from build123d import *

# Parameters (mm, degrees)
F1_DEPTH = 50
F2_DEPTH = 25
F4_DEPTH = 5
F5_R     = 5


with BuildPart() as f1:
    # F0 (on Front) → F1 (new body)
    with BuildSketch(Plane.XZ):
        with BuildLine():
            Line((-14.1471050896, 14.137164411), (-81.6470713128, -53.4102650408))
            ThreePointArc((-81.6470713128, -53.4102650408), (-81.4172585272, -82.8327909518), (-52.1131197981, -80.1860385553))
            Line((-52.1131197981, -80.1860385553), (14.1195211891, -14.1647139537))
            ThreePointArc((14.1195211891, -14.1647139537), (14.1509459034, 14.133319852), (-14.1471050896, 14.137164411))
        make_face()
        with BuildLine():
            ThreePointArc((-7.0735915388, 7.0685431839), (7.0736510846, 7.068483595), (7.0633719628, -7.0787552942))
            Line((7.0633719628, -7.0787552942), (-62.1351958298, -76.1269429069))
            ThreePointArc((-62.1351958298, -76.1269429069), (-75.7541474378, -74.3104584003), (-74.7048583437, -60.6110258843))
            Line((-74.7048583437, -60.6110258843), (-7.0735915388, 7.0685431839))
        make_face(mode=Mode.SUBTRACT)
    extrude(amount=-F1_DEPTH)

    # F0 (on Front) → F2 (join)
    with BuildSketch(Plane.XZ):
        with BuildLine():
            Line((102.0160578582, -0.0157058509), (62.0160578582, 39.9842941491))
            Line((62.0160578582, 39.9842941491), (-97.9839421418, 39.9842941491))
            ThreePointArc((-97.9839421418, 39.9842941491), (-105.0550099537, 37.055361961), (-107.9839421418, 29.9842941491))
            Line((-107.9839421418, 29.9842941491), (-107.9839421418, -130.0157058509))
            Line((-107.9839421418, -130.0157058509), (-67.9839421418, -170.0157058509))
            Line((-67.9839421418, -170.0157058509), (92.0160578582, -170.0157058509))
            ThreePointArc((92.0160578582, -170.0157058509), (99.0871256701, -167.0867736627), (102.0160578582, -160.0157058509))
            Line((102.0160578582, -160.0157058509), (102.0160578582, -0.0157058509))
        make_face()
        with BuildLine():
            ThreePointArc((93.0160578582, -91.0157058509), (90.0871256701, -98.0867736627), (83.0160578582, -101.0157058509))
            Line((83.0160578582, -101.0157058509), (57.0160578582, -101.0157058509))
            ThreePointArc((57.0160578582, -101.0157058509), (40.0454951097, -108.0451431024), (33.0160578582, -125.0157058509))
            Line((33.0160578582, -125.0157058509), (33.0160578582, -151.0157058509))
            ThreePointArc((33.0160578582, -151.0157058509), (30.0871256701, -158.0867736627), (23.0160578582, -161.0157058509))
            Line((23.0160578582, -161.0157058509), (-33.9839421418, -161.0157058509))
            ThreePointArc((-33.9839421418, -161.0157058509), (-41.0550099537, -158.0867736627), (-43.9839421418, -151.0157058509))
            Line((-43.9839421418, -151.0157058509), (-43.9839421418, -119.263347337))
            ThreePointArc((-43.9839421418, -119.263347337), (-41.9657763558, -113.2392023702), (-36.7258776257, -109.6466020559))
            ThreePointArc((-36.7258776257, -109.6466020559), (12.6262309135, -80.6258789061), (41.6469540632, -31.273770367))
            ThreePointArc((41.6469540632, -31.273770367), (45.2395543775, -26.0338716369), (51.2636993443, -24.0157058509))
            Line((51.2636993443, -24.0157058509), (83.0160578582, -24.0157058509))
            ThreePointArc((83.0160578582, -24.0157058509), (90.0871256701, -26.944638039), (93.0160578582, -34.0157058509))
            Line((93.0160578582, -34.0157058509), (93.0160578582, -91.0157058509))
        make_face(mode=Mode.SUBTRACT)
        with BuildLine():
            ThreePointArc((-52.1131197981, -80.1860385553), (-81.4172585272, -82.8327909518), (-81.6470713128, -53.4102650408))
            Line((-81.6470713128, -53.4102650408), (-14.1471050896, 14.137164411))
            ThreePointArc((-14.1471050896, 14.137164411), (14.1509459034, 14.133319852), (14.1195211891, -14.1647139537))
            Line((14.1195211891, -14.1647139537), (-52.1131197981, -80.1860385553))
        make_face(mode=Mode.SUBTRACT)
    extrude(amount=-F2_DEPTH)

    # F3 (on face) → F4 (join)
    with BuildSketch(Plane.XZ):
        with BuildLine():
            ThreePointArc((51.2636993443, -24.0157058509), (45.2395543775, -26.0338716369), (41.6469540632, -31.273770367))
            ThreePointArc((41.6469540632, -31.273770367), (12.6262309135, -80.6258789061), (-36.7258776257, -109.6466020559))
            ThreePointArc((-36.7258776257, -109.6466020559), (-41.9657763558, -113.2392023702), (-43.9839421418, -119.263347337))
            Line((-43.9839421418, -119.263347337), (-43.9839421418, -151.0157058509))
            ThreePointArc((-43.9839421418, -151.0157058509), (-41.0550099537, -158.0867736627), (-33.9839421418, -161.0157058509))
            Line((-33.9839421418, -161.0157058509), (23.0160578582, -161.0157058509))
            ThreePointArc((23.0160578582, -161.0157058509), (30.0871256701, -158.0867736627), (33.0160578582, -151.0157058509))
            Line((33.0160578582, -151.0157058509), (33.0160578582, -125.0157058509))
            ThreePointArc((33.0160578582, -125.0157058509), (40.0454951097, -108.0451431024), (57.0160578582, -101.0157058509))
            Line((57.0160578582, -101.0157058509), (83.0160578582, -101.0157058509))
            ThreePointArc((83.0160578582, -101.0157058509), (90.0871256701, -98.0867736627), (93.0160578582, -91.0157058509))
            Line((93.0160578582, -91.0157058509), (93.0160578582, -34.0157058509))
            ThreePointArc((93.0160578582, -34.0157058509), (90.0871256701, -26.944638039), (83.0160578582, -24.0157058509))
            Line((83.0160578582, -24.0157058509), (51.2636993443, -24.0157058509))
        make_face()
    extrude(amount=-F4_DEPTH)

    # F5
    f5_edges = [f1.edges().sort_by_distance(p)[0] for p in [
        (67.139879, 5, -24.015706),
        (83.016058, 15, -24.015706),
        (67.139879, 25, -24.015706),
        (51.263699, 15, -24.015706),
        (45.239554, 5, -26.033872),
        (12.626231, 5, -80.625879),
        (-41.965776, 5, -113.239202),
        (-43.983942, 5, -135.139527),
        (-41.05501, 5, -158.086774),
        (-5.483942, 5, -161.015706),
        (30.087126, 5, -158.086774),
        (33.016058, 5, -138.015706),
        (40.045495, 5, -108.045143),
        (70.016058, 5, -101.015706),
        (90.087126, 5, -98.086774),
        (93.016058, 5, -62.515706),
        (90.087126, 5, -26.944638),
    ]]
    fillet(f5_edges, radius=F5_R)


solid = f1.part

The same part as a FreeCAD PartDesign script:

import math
import FreeCAD as App
import Part
import Sketcher
from FreeCAD import Vector
Q = App.Units.Quantity


def edges_at(feature, points):
    """Names of the edges that pass closest to the given points."""
    edges = feature.Shape.Edges
    near = lambda p: min(range(len(edges)), key=lambda i: edges[i].distToShape(Part.Vertex(*p))[0])
    return sorted({f"Edge{near(p) + 1}" for p in points})

doc = App.newDocument("Part")
body = doc.addObject("PartDesign::Body", "Body")

# Sketch on XZ plane
sketch1 = doc.addObject("Sketcher::SketchObject", "Sketch")
body.addObject(sketch1)
sketch1.AttachmentSupport = (doc.XZ_Plane, [""])
sketch1.MapMode = "FlatFace"
sketch1.addGeometry([
    Part.LineSegment(Vector(-14.147105, 14.137164, 0), Vector(-81.647071, -53.410265, 0)),  # 0
    Part.ArcOfCircle(Part.Circle(Vector(-67.983942, -68.015706, 0), Vector(0, 0, 1), 20), math.radians(133.090795), math.radians(322.517677)),  # 1
    Part.LineSegment(Vector(-52.11312, -80.186039, 0), Vector(14.119521, -14.164714, 0)),  # 2
    Part.ArcOfCircle(Part.Circle(Vector(0, 0, 0), Vector(0, 0, 1), 20), math.radians(-45.091548), math.radians(135.020137)),  # 3
    Part.LineSegment(Vector(-74.704858, -60.611026, 0), Vector(-7.073592, 7.068543, 0)),  # 4
    Part.ArcOfCircle(Part.Circle(Vector(0, 0, 0), Vector(0, 0, 1), 10), math.radians(-45.062324), math.radians(135.020453)),  # 5
    Part.LineSegment(Vector(7.063372, -7.078755, 0), Vector(-62.135196, -76.126943, 0)),  # 6
    Part.ArcOfCircle(Part.Circle(Vector(-67.983942, -68.015706, 0), Vector(0, 0, 1), 10), math.radians(132.228703), math.radians(305.794134)),  # 7
], False)
sketch1.addConstraint([
    Sketcher.Constraint("Coincident", 0, 2, 1, 1),
    Sketcher.Constraint("Coincident", 1, 2, 2, 1),
    Sketcher.Constraint("Coincident", 2, 2, 3, 1),
    Sketcher.Constraint("Coincident", 3, 2, 0, 1),
    Sketcher.Constraint("Coincident", 4, 2, 5, 2),
    Sketcher.Constraint("Coincident", 5, 1, 6, 1),
    Sketcher.Constraint("Coincident", 6, 2, 7, 2),
    Sketcher.Constraint("Coincident", 7, 1, 4, 1),
    Sketcher.Constraint("Coincident", 3, 3, -1, 1),
    Sketcher.Constraint("Coincident", 5, 3, -1, 1),
    Sketcher.Constraint("Coincident", 7, 3, 1, 3),
    Sketcher.Constraint("Radius", 1, 20.0),
    Sketcher.Constraint("Radius", 3, 20.0),
    Sketcher.Constraint("Radius", 5, 10.0),
    Sketcher.Constraint("Radius", 7, 10.0),
    Sketcher.Constraint("DistanceY", 5, 1, 4, 2, 14.147298),
    Sketcher.Constraint("DistanceX", 0, 2, -1, 1, 81.647071),
    Sketcher.Constraint("DistanceX", 1, 2, -1, 1, 52.11312),
    Sketcher.Constraint("DistanceY", 1, 2, -1, 1, 80.186039),
    Sketcher.Constraint("DistanceX", -1, 1, 2, 2, 14.119521),
    Sketcher.Constraint("DistanceX", 4, 2, -1, 1, 7.073592),
    Sketcher.Constraint("DistanceX", 7, 1, -1, 1, 74.704858),
    Sketcher.Constraint("DistanceX", 0, 2, 1, 3, 13.663129),
    Sketcher.Constraint("DistanceY", 2, 2, 3, 2, 28.301878),
    Sketcher.Constraint("Distance", 6, 97.755276),
])
pad1 = doc.addObject("PartDesign::Pad", "Pad")
body.addObject(pad1)
pad1.Profile = sketch1
pad1.Length = 50
pad1.Reversed = True

# Sketch on XZ plane
sketch2 = doc.addObject("Sketcher::SketchObject", "Sketch001")
body.addObject(sketch2)
sketch2.AttachmentSupport = (doc.XZ_Plane, [""])
sketch2.MapMode = "FlatFace"
sketch2.addGeometry([
    Part.LineSegment(Vector(102.016058, -0.015706, 0), Vector(62.016058, 39.984294, 0)),  # 0
    Part.LineSegment(Vector(62.016058, 39.984294, 0), Vector(-97.983942, 39.984294, 0)),  # 1
    Part.ArcOfCircle(Part.Circle(Vector(-97.983942, 29.984294, 0), Vector(0, 0, 1), 10), math.radians(90), math.radians(180)),  # 2
    Part.LineSegment(Vector(-107.983942, 29.984294, 0), Vector(-107.983942, -130.015706, 0)),  # 3
    Part.LineSegment(Vector(-107.983942, -130.015706, 0), Vector(-67.983942, -170.015706, 0)),  # 4
    Part.LineSegment(Vector(-67.983942, -170.015706, 0), Vector(92.016058, -170.015706, 0)),  # 5
    Part.ArcOfCircle(Part.Circle(Vector(92.016058, -160.015706, 0), Vector(0, 0, 1), 10), math.radians(-90), math.radians(0)),  # 6
    Part.LineSegment(Vector(102.016058, -160.015706, 0), Vector(102.016058, -0.015706, 0)),  # 7
    Part.LineSegment(Vector(93.016058, -34.015706, 0), Vector(93.016058, -91.015706, 0)),  # 8
    Part.ArcOfCircle(Part.Circle(Vector(83.016058, -91.015706, 0), Vector(0, 0, 1), 10), math.radians(-90), math.radians(0)),  # 9
    Part.LineSegment(Vector(83.016058, -101.015706, 0), Vector(57.016058, -101.015706, 0)),  # 10
    Part.ArcOfCircle(Part.Circle(Vector(57.016058, -125.015706, 0), Vector(0, 0, 1), 24), math.radians(90), math.radians(180)),  # 11
    Part.LineSegment(Vector(33.016058, -125.015706, 0), Vector(33.016058, -151.015706, 0)),  # 12
    Part.ArcOfCircle(Part.Circle(Vector(23.016058, -151.015706, 0), Vector(0, 0, 1), 10), math.radians(-90), math.radians(0)),  # 13
    Part.LineSegment(Vector(23.016058, -161.015706, 0), Vector(-33.983942, -161.015706, 0)),  # 14
    Part.ArcOfCircle(Part.Circle(Vector(-33.983942, -151.015706, 0), Vector(0, 0, 1), 10), math.radians(180), math.radians(270)),  # 15
    Part.LineSegment(Vector(-43.983942, -151.015706, 0), Vector(-43.983942, -119.263347, 0)),  # 16
    Part.ArcOfCircle(Part.Circle(Vector(-33.983942, -119.263347, 0), Vector(0, 0, 1), 10), math.radians(105.913961), math.radians(180)),  # 17
    Part.ArcOfCircle(Part.Circle(Vector(-67.983942, -0.015706, 0), Vector(0, 0, 1), 114), math.radians(-74.086039), math.radians(-15.913961)),  # 18
    Part.ArcOfCircle(Part.Circle(Vector(51.263699, -34.015706, 0), Vector(0, 0, 1), 10), math.radians(90), math.radians(164.086039)),  # 19
    Part.LineSegment(Vector(51.263699, -24.015706, 0), Vector(83.016058, -24.015706, 0)),  # 20
    Part.ArcOfCircle(Part.Circle(Vector(83.016058, -34.015706, 0), Vector(0, 0, 1), 10), math.radians(0), math.radians(90)),  # 21
    Part.LineSegment(Vector(14.119521, -14.164714, 0), Vector(-52.11312, -80.186039, 0)),  # 22
    Part.ArcOfCircle(Part.Circle(Vector(-67.983942, -68.015706, 0), Vector(0, 0, 1), 20), math.radians(133.090795), math.radians(322.517677)),  # 23
    Part.LineSegment(Vector(-81.647071, -53.410265, 0), Vector(-14.147105, 14.137164, 0)),  # 24
    Part.ArcOfCircle(Part.Circle(Vector(0, 0, 0), Vector(0, 0, 1), 20), math.radians(-45.091548), math.radians(135.020137)),  # 25
], False)
sketch2.addConstraint([
    Sketcher.Constraint("Coincident", 0, 2, 1, 1),
    Sketcher.Constraint("Tangent", 1, 2, 2, 1),
    Sketcher.Constraint("Tangent", 2, 2, 3, 1),
    Sketcher.Constraint("Coincident", 3, 2, 4, 1),
    Sketcher.Constraint("Coincident", 4, 2, 5, 1),
    Sketcher.Constraint("Tangent", 5, 2, 6, 1),
    Sketcher.Constraint("Tangent", 6, 2, 7, 1),
    Sketcher.Constraint("Coincident", 7, 2, 0, 1),
    Sketcher.Constraint("Tangent", 8, 2, 9, 2),
    Sketcher.Constraint("Tangent", 9, 1, 10, 1),
    Sketcher.Constraint("Tangent", 10, 2, 11, 1),
    Sketcher.Constraint("Tangent", 11, 2, 12, 1),
    Sketcher.Constraint("Tangent", 12, 2, 13, 2),
    Sketcher.Constraint("Tangent", 13, 1, 14, 1),
    Sketcher.Constraint("Tangent", 14, 2, 15, 2),
    Sketcher.Constraint("Tangent", 15, 1, 16, 1),
    Sketcher.Constraint("Tangent", 16, 2, 17, 2),
    Sketcher.Constraint("Tangent", 17, 1, 18, 1),
    Sketcher.Constraint("Tangent", 18, 2, 19, 2),
    Sketcher.Constraint("Tangent", 19, 1, 20, 1),
    Sketcher.Constraint("Tangent", 20, 2, 21, 2),
    Sketcher.Constraint("Tangent", 21, 1, 8, 1),
    Sketcher.Constraint("Coincident", 22, 2, 23, 2),
    Sketcher.Constraint("Coincident", 23, 1, 24, 1),
    Sketcher.Constraint("Tangent", 24, 2, 25, 2),
    Sketcher.Constraint("Tangent", 25, 1, 22, 1),
    Sketcher.Constraint("Horizontal", 1),
    Sketcher.Constraint("Vertical", 3),
    Sketcher.Constraint("Horizontal", 5),
    Sketcher.Constraint("Vertical", 7),
    Sketcher.Constraint("Vertical", 8),
    Sketcher.Constraint("Horizontal", 10),
    Sketcher.Constraint("Vertical", 12),
    Sketcher.Constraint("Horizontal", 14),
    Sketcher.Constraint("Vertical", 16),
    Sketcher.Constraint("Horizontal", 20),
    Sketcher.Constraint("Coincident", 25, 3, -1, 1),
    Sketcher.Constraint("Equal", 2, 6),
    Sketcher.Constraint("Equal", 6, 9),
    Sketcher.Constraint("Equal", 9, 13),
    Sketcher.Constraint("Equal", 13, 15),
    Sketcher.Constraint("Equal", 15, 17),
    Sketcher.Constraint("Equal", 17, 19),
    Sketcher.Constraint("Equal", 19, 21),
    Sketcher.Constraint("Equal", 23, 25),
    Sketcher.Constraint("Parallel", 0, 4),
    Sketcher.Constraint("Horizontal", 18, 3, 7, 2),
    Sketcher.Constraint("Vertical", 18, 3, 23, 3),
    Sketcher.Constraint("Vertical", 23, 3, 4, 2),
    Sketcher.Constraint("Equal", 1, 5),
    Sketcher.Constraint("Equal", 5, 3),
    Sketcher.Constraint("Equal", 14, 8),
    Sketcher.Constraint("Equal", 10, 12),
    Sketcher.Constraint("Equal", 20, 16),
    Sketcher.Constraint("Radius", 2, 10.0),
    Sketcher.Constraint("Radius", 11, 24.0),
    Sketcher.Constraint("Radius", 18, 114.0),
    Sketcher.Constraint("Radius", 23, 20.0),
    Sketcher.Constraint("DistanceX", 1, 2, 1, 1, 160.0),
    Sketcher.Constraint("DistanceX", 10, 2, 10, 1, 26.0),
    Sketcher.Constraint("DistanceX", 14, 2, 14, 1, 57.0),
    Sketcher.Constraint("Angle", 0, Q("135 deg")),
    Sketcher.Constraint("DistanceX", 2, 3, 6, 3, 190.0),
    Sketcher.Constraint("DistanceX", 9, 3, 6, 3, 9.0),
    Sketcher.Constraint("DistanceY", 23, 3, 18, 3, 68.0),
    Sketcher.Constraint("DistanceX", -1, 1, 19, 3, 51.263699),
    Sketcher.Constraint("DistanceX", 22, 2, -1, 1, 52.11312),
    Sketcher.Constraint("DistanceY", 22, 2, -1, 1, 80.186039),
    Sketcher.Constraint("DistanceX", 23, 1, -1, 1, 81.647071),
])
pad2 = doc.addObject("PartDesign::Pad", "Pad001")
body.addObject(pad2)
pad2.Profile = sketch2
pad2.Length = 25
pad2.Reversed = True

# Sketch on XZ plane
sketch3 = doc.addObject("Sketcher::SketchObject", "Sketch002")
body.addObject(sketch3)
sketch3.AttachmentSupport = (doc.XZ_Plane, [""])
sketch3.MapMode = "FlatFace"
sketch3.addGeometry([
    Part.ArcOfCircle(Part.Circle(Vector(51.263699, -34.015706, 0), Vector(0, 0, 1), 10), math.radians(90), math.radians(164.086039)),  # 0
    Part.ArcOfCircle(Part.Circle(Vector(-67.983942, -0.015706, 0), Vector(0, 0, 1), 114), math.radians(-74.086039), math.radians(-15.913961)),  # 1
    Part.ArcOfCircle(Part.Circle(Vector(-33.983942, -119.263347, 0), Vector(0, 0, 1), 10), math.radians(105.913961), math.radians(180)),  # 2
    Part.LineSegment(Vector(-43.983942, -119.263347, 0), Vector(-43.983942, -151.015706, 0)),  # 3
    Part.ArcOfCircle(Part.Circle(Vector(-33.983942, -151.015706, 0), Vector(0, 0, 1), 10), math.radians(180), math.radians(270)),  # 4
    Part.LineSegment(Vector(-33.983942, -161.015706, 0), Vector(23.016058, -161.015706, 0)),  # 5
    Part.ArcOfCircle(Part.Circle(Vector(23.016058, -151.015706, 0), Vector(0, 0, 1), 10), math.radians(-90), math.radians(0)),  # 6
    Part.LineSegment(Vector(33.016058, -151.015706, 0), Vector(33.016058, -125.015706, 0)),  # 7
    Part.ArcOfCircle(Part.Circle(Vector(57.016058, -125.015706, 0), Vector(0, 0, 1), 24), math.radians(90), math.radians(180)),  # 8
    Part.LineSegment(Vector(57.016058, -101.015706, 0), Vector(83.016058, -101.015706, 0)),  # 9
    Part.ArcOfCircle(Part.Circle(Vector(83.016058, -91.015706, 0), Vector(0, 0, 1), 10), math.radians(-90), math.radians(0)),  # 10
    Part.LineSegment(Vector(93.016058, -91.015706, 0), Vector(93.016058, -34.015706, 0)),  # 11
    Part.ArcOfCircle(Part.Circle(Vector(83.016058, -34.015706, 0), Vector(0, 0, 1), 10), math.radians(0), math.radians(90)),  # 12
    Part.LineSegment(Vector(83.016058, -24.015706, 0), Vector(51.263699, -24.015706, 0)),  # 13
], False)
sketch3.addConstraint([
    Sketcher.Constraint("Tangent", 0, 2, 1, 2),
    Sketcher.Constraint("Tangent", 1, 1, 2, 1),
    Sketcher.Constraint("Tangent", 2, 2, 3, 1),
    Sketcher.Constraint("Tangent", 3, 2, 4, 1),
    Sketcher.Constraint("Tangent", 4, 2, 5, 1),
    Sketcher.Constraint("Tangent", 5, 2, 6, 1),
    Sketcher.Constraint("Tangent", 6, 2, 7, 1),
    Sketcher.Constraint("Tangent", 7, 2, 8, 2),
    Sketcher.Constraint("Tangent", 8, 1, 9, 1),
    Sketcher.Constraint("Tangent", 9, 2, 10, 1),
    Sketcher.Constraint("Tangent", 10, 2, 11, 1),
    Sketcher.Constraint("Tangent", 11, 2, 12, 1),
    Sketcher.Constraint("Tangent", 12, 2, 13, 1),
    Sketcher.Constraint("Tangent", 13, 2, 0, 1),
    Sketcher.Constraint("Vertical", 3),
    Sketcher.Constraint("Horizontal", 5),
    Sketcher.Constraint("Vertical", 7),
    Sketcher.Constraint("Horizontal", 9),
    Sketcher.Constraint("Vertical", 11),
    Sketcher.Constraint("Horizontal", 13),
    Sketcher.Constraint("Equal", 0, 2),
    Sketcher.Constraint("Equal", 2, 4),
    Sketcher.Constraint("Equal", 4, 6),
    Sketcher.Constraint("Equal", 6, 10),
    Sketcher.Constraint("Equal", 10, 12),
    Sketcher.Constraint("Equal", 13, 3),
    Sketcher.Constraint("Equal", 9, 7),
    Sketcher.Constraint("Equal", 5, 11),
    Sketcher.Constraint("Radius", 0, 10.0),
    Sketcher.Constraint("Radius", 1, 114.0),
    Sketcher.Constraint("Radius", 8, 24.0),
    Sketcher.Constraint("DistanceX", 5, 1, 5, 2, 57.0),
    Sketcher.Constraint("DistanceX", 9, 1, 9, 2, 26.0),
    Sketcher.Constraint("DistanceY", 0, 3, 1, 3, 34.0),
    Sketcher.Constraint("DistanceX", -1, 1, 0, 3, 51.263699),
    Sketcher.Constraint("DistanceY", 0, 2, -1, 1, 31.27377),
])
pad3 = doc.addObject("PartDesign::Pad", "Pad002")
body.addObject(pad3)
pad3.Profile = sketch3
pad3.Length = 5
pad3.Reversed = True
doc.recompute()

fillet = doc.addObject("PartDesign::Fillet", "Fillet")
body.addObject(fillet)
fillet.Base = (pad3, edges_at(pad3, [
    (67.14, 5, -24.016),
    (83.016, 15, -24.016),
    (67.14, 25, -24.016),
    (51.264, 15, -24.016),
    (45.24, 5, -26.034),
    (12.626, 5, -80.626),
    (-41.966, 5, -113.239),
    (-43.984, 5, -135.14),
    (-41.055, 5, -158.087),
    (-5.484, 5, -161.016),
    (30.087, 5, -158.087),
    (33.016, 5, -138.016),
    (40.045, 5, -108.045),
    (70.016, 5, -101.016),
    (90.087, 5, -98.087),
    (93.016, 5, -62.516),
    (90.087, 5, -26.945),
]))
fillet.Radius = 5

doc.recompute()
